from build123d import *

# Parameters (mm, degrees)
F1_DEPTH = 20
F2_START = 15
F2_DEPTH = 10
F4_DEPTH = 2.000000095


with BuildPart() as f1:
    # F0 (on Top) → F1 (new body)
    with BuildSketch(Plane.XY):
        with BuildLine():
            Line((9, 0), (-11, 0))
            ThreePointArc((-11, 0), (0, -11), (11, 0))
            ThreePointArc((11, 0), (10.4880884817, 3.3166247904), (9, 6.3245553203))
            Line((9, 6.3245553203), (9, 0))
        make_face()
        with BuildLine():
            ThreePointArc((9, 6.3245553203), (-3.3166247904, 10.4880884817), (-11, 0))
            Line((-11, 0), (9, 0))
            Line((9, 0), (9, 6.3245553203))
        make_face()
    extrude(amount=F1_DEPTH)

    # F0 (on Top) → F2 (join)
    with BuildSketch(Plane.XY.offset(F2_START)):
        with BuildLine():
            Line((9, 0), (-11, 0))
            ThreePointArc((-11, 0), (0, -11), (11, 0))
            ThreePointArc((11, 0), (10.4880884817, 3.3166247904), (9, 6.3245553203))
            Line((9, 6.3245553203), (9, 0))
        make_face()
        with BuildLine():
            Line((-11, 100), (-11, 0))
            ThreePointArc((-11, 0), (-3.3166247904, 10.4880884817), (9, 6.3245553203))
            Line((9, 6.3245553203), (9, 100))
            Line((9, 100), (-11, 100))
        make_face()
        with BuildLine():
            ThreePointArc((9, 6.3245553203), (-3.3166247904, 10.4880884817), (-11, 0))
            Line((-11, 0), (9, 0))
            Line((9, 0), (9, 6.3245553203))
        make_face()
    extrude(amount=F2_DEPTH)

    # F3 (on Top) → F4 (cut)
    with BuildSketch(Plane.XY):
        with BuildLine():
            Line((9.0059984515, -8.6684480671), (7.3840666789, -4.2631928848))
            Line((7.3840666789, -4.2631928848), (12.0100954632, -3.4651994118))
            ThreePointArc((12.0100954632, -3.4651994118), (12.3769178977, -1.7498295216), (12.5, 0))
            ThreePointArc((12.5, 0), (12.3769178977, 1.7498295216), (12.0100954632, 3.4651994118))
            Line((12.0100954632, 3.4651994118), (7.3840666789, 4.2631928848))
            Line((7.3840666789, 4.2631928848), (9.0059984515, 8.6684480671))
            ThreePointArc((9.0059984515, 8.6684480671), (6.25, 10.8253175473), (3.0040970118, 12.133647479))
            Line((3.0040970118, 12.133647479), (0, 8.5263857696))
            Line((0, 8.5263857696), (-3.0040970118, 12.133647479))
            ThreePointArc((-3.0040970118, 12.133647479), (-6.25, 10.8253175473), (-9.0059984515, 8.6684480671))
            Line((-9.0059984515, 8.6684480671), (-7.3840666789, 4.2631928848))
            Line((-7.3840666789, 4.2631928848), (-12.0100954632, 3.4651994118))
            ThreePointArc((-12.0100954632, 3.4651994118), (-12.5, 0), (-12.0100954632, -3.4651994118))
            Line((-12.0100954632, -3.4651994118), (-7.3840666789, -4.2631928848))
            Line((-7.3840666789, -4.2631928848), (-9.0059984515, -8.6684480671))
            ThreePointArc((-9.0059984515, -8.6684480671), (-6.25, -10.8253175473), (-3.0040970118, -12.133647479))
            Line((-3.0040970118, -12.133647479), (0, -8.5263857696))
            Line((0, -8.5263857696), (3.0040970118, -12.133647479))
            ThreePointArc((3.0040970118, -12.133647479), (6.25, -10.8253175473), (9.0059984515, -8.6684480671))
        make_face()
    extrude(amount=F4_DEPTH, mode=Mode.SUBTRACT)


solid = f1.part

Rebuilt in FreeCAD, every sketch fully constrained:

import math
import FreeCAD as App
import Part
import Sketcher

V = App.Vector
Q = App.Units.Quantity

doc = App.newDocument("Part")
body = doc.addObject("PartDesign::Body", "Body")

# Sketch on XY plane
sketch1 = doc.addObject("Sketcher::SketchObject", "Sketch")
body.addObject(sketch1)
sketch1.AttachmentSupport = (doc.XY_Plane, [""])
sketch1.MapMode = "FlatFace"
sketch1.addGeometry([
    Part.ArcOfCircle(Part.Circle(V(0, 0, 0), V(0, 0, 1), 11), math.radians(180), math.radians(360)),
    Part.ArcOfCircle(Part.Circle(V(0, 0, 0), V(0, 0, 1), 11), math.radians(0), math.radians(35)),
    Part.ArcOfCircle(Part.Circle(V(0, 0, 0), V(0, 0, 1), 11), math.radians(35), math.radians(180)),
], False)
sketch1.addConstraint([
    Sketcher.Constraint("Tangent", 0, 2, 1, 1),
    Sketcher.Constraint("Tangent", 1, 2, 2, 1),
    Sketcher.Constraint("Tangent", 2, 2, 0, 1),
    Sketcher.Constraint("Coincident", 0, 3, -1, 1),
    Sketcher.Constraint("PointOnObject", 0, 2, -1),
    Sketcher.Constraint("PointOnObject", 2, 2, -1),
    Sketcher.Constraint("Radius", 0, Q("11 mm")),
    Sketcher.Constraint("DistanceX", -1, 1, 1, 2, Q("9 mm")),
])
pad1 = doc.addObject("PartDesign::Pad", "Pad")
body.addObject(pad1)
pad1.Profile = sketch1
pad1.Length = 20

# Sketch on XY plane
sketch2 = doc.addObject("Sketcher::SketchObject", "Sketch001")
body.addObject(sketch2)
sketch2.AttachmentSupport = (doc.XY_Plane, [""])
sketch2.MapMode = "FlatFace"
sketch2.AttachmentOffset = App.Placement(V(0, 0, 15), App.Rotation())
sketch2.addGeometry([
    Part.ArcOfCircle(Part.Circle(V(0, 0, 0), V(0, 0, 1), 11), math.radians(180), math.radians(360)),  # 0
    Part.ArcOfCircle(Part.Circle(V(0, 0, 0), V(0, 0, 1), 11), math.radians(0), math.radians(35)),  # 1
    Part.LineSegment(V(9, 6, 0), V(9, 100, 0)),  # 2
    Part.LineSegment(V(9, 100, 0), V(-11, 100, 0)),  # 3
    Part.LineSegment(V(-11, 100, 0), V(-11, 0, 0)),  # 4
], False)
sketch2.addConstraint([
    Sketcher.Constraint("Tangent", 0, 2, 1, 1),
    Sketcher.Constraint("Coincident", 1, 2, 2, 1),
    Sketcher.Constraint("Coincident", 2, 2, 3, 1),
    Sketcher.Constraint("Coincident", 3, 2, 4, 1),
    Sketcher.Constraint("Tangent", 4, 2, 0, 1),
    Sketcher.Constraint("Vertical", 2),
    Sketcher.Constraint("Horizontal", 3),
    Sketcher.Constraint("Vertical", 4),
    Sketcher.Constraint("Coincident", 0, 3, -1, 1),
    Sketcher.Constraint("Equal", 0, 1),
    Sketcher.Constraint("PointOnObject", 0, 2, -1),
    Sketcher.Constraint("Radius", 0, Q("11 mm")),
    Sketcher.Constraint("DistanceX", 3, 2, 3, 1, Q("20 mm")),
    Sketcher.Constraint("DistanceY", 4, 2, 4, 1, Q("100 mm")),
])
pad2 = doc.addObject("PartDesign::Pad", "Pad001")
body.addObject(pad2)
pad2.Profile = sketch2
pad2.Length = 10

# Sketch on XY plane
sketch3 = doc.addObject("Sketcher::SketchObject", "Sketch002")
body.addObject(sketch3)
sketch3.AttachmentSupport = (doc.XY_Plane, [""])
sketch3.MapMode = "FlatFace"
sketch3.addGeometry([
    Part.LineSegment(V(9, -8.7, 0), V(7.4, -4.3, 0)),  # 0
    Part.LineSegment(V(7.4, -4.3, 0), V(12, -3.5, 0)),  # 1
    Part.ArcOfCircle(Part.Circle(V(0, 0, 0), V(0, 0, 1), 12.5), math.radians(-16.09), math.radians(0)),  # 2
    Part.ArcOfCircle(Part.Circle(V(0, 0, 0), V(0, 0, 1), 12.5), math.radians(0), math.radians(16.09)),  # 3
    Part.LineSegment(V(12, 3.5, 0), V(7.4, 4.3, 0)),  # 4
    Part.LineSegment(V(7.4, 4.3, 0), V(9, 8.7, 0)),  # 5
    Part.ArcOfCircle(Part.Circle(V(0, 0, 0), V(0, 0, 1), 12.5), math.radians(44), math.radians(76)),  # 6
    Part.LineSegment(V(3, 12.1, 0), V(0, 8.5, 0)),  # 7
    Part.LineSegment(V(0, 8.5, 0), V(-3, 12.1, 0)),  # 8
    Part.ArcOfCircle(Part.Circle(V(0, 0, 0), V(0, 0, 1), 12.5), math.radians(104), math.radians(136)),  # 9
    Part.LineSegment(V(-9, 8.7, 0), V(-7.4, 4.3, 0)),  # 10
    Part.LineSegment(V(-7.4, 4.3, 0), V(-12, 3.5, 0)),  # 11
    Part.ArcOfCircle(Part.Circle(V(0, 0, 0), V(0, 0, 1), 12.5), math.radians(164), math.radians(196)),  # 12
    Part.LineSegment(V(-12, -3.5, 0), V(-7.4, -4.3, 0)),  # 13
    Part.LineSegment(V(-7.4, -4.3, 0), V(-9, -8.7, 0)),  # 14
    Part.ArcOfCircle(Part.Circle(V(0, 0, 0), V(0, 0, 1), 12.5), math.radians(-136), math.radians(-104)),  # 15
    Part.LineSegment(V(-3, -12.1, 0), V(0, -8.5, 0)),  # 16
    Part.LineSegment(V(0, -8.5, 0), V(3, -12.1, 0)),  # 17
    Part.ArcOfCircle(Part.Circle(V(0, 0, 0), V(0, 0, 1), 12.5), math.radians(-76), math.radians(-44)),  # 18
], False)
sketch3.addConstraint([
    Sketcher.Constraint("Coincident", 0, 2, 1, 1),
    Sketcher.Constraint("Coincident", 1, 2, 2, 1),
    Sketcher.Constraint("Tangent", 2, 2, 3, 1),
    Sketcher.Constraint("Coincident", 3, 2, 4, 1),
    Sketcher.Constraint("Coincident", 4, 2, 5, 1),
    Sketcher.Constraint("Coincident", 5, 2, 6, 1),
    Sketcher.Constraint("Coincident", 6, 2, 7, 1),
    Sketcher.Constraint("Coincident", 7, 2, 8, 1),
    Sketcher.Constraint("Coincident", 8, 2, 9, 1),
    Sketcher.Constraint("Coincident", 9, 2, 10, 1),
    Sketcher.Constraint("Coincident", 10, 2, 11, 1),
    Sketcher.Constraint("Coincident", 11, 2, 12, 1),
    Sketcher.Constraint("Coincident", 12, 2, 13, 1),
    Sketcher.Constraint("Coincident", 13, 2, 14, 1),
    Sketcher.Constraint("Coincident", 14, 2, 15, 1),
    Sketcher.Constraint("Coincident", 15, 2, 16, 1),
    Sketcher.Constraint("Coincident", 16, 2, 17, 1),
    Sketcher.Constraint("Coincident", 17, 2, 18, 1),
    Sketcher.Constraint("Coincident", 18, 2, 0, 1),
    Sketcher.Constraint("Coincident", 2, 3, -1, 1),
    Sketcher.Constraint("Coincident", 6, 3, -1, 1),
    Sketcher.Constraint("Coincident", 9, 3, -1, 1),
    Sketcher.Constraint("Coincident", 12, 3, -1, 1),
    Sketcher.Constraint("Coincident", 15, 3, -1, 1),
    Sketcher.Constraint("Coincident", 18, 3, -1, 1),
    Sketcher.Constraint("Equal", 2, 3),
    Sketcher.Constraint("Equal", 3, 6),
    Sketcher.Constraint("Equal", 6, 9),
    Sketcher.Constraint("Equal", 9, 12),
    Sketcher.Constraint("Equal", 12, 15),
    Sketcher.Constraint("Equal", 15, 18),
    Sketcher.Constraint("Symmetric", 0, 2, 10, 2, -1, 1),
    Sketcher.Constraint("Symmetric", 4, 2, 13, 2, -1, 1),
    Sketcher.Constraint("Symmetric", 7, 2, 16, 2, -1, 1),
    Sketcher.Constraint("Symmetric", 4, 2, 10, 2, -2),
    Sketcher.Constraint("PointOnObject", 2, 2, -1),
    Sketcher.Constraint("PointOnObject", 7, 2, -2),
    Sketcher.Constraint("Parallel", 0, 10),
    Sketcher.Constraint("Parallel", 1, 11),
    Sketcher.Constraint("Parallel", 4, 13),
    Sketcher.Constraint("Parallel", 5, 14),
    Sketcher.Constraint("Parallel", 7, 16),
    Sketcher.Constraint("Parallel", 8, 17),
    Sketcher.Constraint("Horizontal", 6, 2, 8, 2),
    Sketcher.Constraint("Horizontal", 5, 2, 9, 2),
    Sketcher.Constraint("Horizontal", 3, 2, 11, 2),
    Sketcher.Constraint("Equal", 0, 1),
    Sketcher.Constraint("Equal", 5, 7),
    Sketcher.Constraint("Radius", 2, Q("12.5 mm")),
    Sketcher.Constraint("DistanceX", -1, 1, 5, 2, Q("9.005998 mm")),
    Sketcher.Constraint("DistanceX", 12, 2, 15, 2, Q("9.005998 mm")),
    Sketcher.Constraint("DistanceY", 1, 2, -1, 1, Q("3.465199 mm")),
    Sketcher.Constraint("Distance", 0, Q("4.694351 mm")),
])
pocket1 = doc.addObject("PartDesign::Pocket", "Pocket")
body.addObject(pocket1)
pocket1.Profile = sketch3
pocket1.Length = 2
pocket1.Reversed = True

doc.recompute()
